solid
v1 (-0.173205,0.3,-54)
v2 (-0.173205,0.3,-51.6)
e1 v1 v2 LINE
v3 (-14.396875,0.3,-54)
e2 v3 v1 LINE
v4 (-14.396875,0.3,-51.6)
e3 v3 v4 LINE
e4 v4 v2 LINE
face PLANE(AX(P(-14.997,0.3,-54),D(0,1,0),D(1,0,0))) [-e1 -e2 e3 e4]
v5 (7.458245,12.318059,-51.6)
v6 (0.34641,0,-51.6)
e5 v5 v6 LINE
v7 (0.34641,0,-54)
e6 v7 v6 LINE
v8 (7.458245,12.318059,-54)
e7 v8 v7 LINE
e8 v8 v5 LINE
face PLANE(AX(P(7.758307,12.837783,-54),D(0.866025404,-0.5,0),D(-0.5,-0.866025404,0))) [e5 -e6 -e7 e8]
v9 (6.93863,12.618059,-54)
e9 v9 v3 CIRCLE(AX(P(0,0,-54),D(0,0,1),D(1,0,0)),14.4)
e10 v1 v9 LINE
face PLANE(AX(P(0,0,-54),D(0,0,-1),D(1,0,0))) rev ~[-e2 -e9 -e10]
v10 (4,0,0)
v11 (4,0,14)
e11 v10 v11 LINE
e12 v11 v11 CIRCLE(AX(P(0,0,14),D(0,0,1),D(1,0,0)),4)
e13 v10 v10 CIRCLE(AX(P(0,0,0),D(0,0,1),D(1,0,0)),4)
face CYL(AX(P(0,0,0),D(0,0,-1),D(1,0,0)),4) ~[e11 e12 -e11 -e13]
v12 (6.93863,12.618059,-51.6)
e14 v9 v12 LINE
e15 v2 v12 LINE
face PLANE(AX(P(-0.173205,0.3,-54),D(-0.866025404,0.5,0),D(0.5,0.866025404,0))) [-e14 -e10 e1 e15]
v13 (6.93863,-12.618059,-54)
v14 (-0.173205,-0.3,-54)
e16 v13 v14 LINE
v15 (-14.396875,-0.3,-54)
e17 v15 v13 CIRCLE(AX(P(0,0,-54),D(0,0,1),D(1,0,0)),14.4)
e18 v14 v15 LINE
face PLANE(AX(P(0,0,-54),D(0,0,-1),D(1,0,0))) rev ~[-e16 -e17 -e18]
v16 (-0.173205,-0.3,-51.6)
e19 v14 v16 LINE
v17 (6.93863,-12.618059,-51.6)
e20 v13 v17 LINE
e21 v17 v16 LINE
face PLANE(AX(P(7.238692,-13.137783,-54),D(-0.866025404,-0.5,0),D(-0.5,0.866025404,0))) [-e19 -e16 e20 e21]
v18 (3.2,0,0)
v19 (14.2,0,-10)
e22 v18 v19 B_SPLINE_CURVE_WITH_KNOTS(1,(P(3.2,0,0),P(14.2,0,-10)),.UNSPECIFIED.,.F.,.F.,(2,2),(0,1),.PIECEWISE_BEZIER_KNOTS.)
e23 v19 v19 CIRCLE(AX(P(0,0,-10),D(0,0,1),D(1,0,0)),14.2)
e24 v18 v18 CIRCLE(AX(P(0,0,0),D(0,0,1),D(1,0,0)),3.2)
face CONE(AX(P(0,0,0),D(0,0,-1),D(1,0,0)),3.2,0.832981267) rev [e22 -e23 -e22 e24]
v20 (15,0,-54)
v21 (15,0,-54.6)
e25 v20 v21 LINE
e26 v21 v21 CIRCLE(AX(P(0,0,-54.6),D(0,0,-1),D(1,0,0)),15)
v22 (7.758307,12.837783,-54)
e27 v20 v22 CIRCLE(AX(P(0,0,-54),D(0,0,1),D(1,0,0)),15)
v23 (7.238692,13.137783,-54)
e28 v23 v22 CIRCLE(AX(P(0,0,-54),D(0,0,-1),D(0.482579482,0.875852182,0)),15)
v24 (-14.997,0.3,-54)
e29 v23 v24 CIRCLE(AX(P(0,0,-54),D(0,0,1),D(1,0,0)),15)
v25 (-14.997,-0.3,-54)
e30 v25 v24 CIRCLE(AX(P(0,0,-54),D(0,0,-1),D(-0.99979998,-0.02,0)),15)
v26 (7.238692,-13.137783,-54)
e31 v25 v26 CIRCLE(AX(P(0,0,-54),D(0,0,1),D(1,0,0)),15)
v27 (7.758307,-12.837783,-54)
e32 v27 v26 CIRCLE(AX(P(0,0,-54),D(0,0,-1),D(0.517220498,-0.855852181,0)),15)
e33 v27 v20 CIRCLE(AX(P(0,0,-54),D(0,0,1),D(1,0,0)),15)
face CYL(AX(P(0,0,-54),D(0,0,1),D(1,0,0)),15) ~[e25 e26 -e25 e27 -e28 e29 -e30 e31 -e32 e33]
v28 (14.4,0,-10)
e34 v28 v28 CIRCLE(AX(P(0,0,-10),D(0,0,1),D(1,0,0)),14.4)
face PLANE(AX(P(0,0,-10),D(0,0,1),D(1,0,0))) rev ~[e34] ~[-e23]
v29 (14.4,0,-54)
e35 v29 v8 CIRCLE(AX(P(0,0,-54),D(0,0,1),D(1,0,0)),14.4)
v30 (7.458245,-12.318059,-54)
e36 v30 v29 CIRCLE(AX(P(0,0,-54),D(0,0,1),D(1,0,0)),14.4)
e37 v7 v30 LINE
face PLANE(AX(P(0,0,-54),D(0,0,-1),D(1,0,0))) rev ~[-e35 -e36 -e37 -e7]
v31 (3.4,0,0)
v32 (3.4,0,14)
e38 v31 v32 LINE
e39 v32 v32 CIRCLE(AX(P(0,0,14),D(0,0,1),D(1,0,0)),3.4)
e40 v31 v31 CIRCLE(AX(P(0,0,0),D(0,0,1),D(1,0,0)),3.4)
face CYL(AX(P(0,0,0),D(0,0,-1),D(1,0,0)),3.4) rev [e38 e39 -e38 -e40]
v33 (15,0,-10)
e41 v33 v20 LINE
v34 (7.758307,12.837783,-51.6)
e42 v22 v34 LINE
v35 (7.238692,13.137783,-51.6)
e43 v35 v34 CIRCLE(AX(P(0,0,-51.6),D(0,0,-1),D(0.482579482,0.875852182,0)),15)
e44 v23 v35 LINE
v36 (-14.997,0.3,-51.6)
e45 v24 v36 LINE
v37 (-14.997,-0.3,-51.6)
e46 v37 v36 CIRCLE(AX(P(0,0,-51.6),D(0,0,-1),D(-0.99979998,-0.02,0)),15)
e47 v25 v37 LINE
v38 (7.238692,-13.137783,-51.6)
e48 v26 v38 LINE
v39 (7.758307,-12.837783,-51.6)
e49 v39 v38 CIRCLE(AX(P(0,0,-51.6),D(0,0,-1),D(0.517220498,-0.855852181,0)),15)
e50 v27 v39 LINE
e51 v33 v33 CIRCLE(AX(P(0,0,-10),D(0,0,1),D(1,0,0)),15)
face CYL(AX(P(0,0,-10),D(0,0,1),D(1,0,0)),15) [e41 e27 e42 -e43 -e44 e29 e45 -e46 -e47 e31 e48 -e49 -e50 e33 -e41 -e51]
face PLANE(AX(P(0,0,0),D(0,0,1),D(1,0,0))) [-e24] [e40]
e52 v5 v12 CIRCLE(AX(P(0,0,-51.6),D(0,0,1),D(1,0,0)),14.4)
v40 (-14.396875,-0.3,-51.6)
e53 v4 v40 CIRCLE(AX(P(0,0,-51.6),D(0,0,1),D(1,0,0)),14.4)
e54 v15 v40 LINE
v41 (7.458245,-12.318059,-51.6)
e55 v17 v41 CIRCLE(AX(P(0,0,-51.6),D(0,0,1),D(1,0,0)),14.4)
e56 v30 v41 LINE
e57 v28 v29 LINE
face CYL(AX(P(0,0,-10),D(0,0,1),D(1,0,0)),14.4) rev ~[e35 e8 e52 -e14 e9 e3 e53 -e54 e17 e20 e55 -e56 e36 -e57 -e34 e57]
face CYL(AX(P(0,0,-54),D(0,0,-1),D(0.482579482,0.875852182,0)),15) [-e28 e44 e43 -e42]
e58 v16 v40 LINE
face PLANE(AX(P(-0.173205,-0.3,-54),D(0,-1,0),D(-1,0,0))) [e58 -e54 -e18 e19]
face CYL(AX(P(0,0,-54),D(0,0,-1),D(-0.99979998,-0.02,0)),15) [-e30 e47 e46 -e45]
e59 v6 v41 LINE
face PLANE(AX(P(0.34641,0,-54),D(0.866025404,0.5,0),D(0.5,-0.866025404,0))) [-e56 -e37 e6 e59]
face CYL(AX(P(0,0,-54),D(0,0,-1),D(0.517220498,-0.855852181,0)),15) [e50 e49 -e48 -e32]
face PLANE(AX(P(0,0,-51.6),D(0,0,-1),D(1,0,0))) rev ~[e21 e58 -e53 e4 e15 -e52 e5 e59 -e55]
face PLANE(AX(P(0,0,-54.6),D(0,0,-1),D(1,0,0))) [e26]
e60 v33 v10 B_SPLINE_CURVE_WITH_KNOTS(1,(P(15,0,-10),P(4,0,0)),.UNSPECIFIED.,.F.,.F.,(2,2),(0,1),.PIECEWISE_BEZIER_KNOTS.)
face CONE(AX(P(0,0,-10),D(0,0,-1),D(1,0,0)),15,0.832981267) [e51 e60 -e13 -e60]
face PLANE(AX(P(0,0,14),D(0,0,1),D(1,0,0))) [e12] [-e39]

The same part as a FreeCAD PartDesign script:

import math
import FreeCAD as App
import Part
import Sketcher
Q = App.Units.Quantity

doc = App.newDocument("Part")
body = doc.addObject("PartDesign::Body", "Body")

# Sketch on XY plane
sketch1 = doc.addObject("Sketcher::SketchObject", "Sketch")
body.addObject(sketch1)
sketch1.AttachmentSupport = (doc.XY_Plane, [""])
sketch1.MapMode = "FlatFace"
sketch1.addGeometry([
    Part.Circle(App.Vector(0, 0, 0), App.Vector(0, 0, 1), 4),
    Part.Circle(App.Vector(0, 0, 0), App.Vector(0, 0, 1), 3.4),
], False)
sketch1.addConstraint([
    Sketcher.Constraint("Coincident", 0, 3, -1, 1),
    Sketcher.Constraint("Coincident", 1, 3, -1, 1),
    Sketcher.Constraint("Diameter", 0, Q("8 mm")),
    Sketcher.Constraint("Diameter", 1, Q("6.8 mm")),
])
pad1 = doc.addObject("PartDesign::Pad", "Pad")
body.addObject(pad1)
pad1.Profile = sketch1
pad1.Length = 14

# Sketch on XY plane
sketch2 = doc.addObject("Sketcher::SketchObject", "Sketch001")
body.addObject(sketch2)
sketch2.AttachmentSupport = (doc.XY_Plane, [""])
sketch2.MapMode = "FlatFace"
sketch2.AttachmentOffset = App.Placement(App.Vector(0, 0, -10), App.Rotation())
sketch2.addGeometry(Part.Circle(App.Vector(0, 0, 0), App.Vector(0, 0, 1), 15), False)
sketch2.addConstraint([
    Sketcher.Constraint("Coincident", 0, 3, -1, 1),
    Sketcher.Constraint("Diameter", 0, Q("30 mm")),
])

# Sketch on XY plane
sketch3 = doc.addObject("Sketcher::SketchObject", "Sketch002")
body.addObject(sketch3)
sketch3.AttachmentSupport = (doc.XY_Plane, [""])
sketch3.MapMode = "FlatFace"
sketch3.addGeometry(Part.Circle(App.Vector(0, 0, 0), App.Vector(0, 0, 1), 4), False)
sketch3.addConstraint([
    Sketcher.Constraint("Coincident", 0, 3, -1, 1),
    Sketcher.Constraint("Diameter", 0, Q("8 mm")),
])

additiveloft = doc.addObject("PartDesign::AdditiveLoft", "AdditiveLoft")
body.addObject(additiveloft)
additiveloft.Profile = sketch2
additiveloft.Sections = [sketch3]

# Sketch on XY plane
sketch4 = doc.addObject("Sketcher::SketchObject", "Sketch003")
body.addObject(sketch4)
sketch4.AttachmentSupport = (doc.XY_Plane, [""])
sketch4.MapMode = "FlatFace"
sketch4.addGeometry(Part.Circle(App.Vector(0, 0, 0), App.Vector(0, 0, 1), 3.2), False)
sketch4.addConstraint([
    Sketcher.Constraint("Coincident", 0, 3, -1, 1),
    Sketcher.Constraint("Diameter", 0, Q("6.4 mm")),
])

# Sketch on XY plane
sketch5 = doc.addObject("Sketcher::SketchObject", "Sketch004")
body.addObject(sketch5)
sketch5.AttachmentSupport = (doc.XY_Plane, [""])
sketch5.MapMode = "FlatFace"
sketch5.AttachmentOffset = App.Placement(App.Vector(0, 0, -10), App.Rotation())
sketch5.addGeometry(Part.Circle(App.Vector(0, 0, 0), App.Vector(0, 0, 1), 14.2), False)
sketch5.addConstraint([
    Sketcher.Constraint("Coincident", 0, 3, -1, 1),
    Sketcher.Constraint("Diameter", 0, Q("28.4 mm")),
])

subtractiveloft = doc.addObject("PartDesign::SubtractiveLoft", "SubtractiveLoft")
body.addObject(subtractiveloft)
subtractiveloft.Profile = sketch4
subtractiveloft.Sections = [sketch5]

# Sketch on XY plane
sketch6 = doc.addObject("Sketcher::SketchObject", "Sketch005")
body.addObject(sketch6)
sketch6.AttachmentSupport = (doc.XY_Plane, [""])
sketch6.MapMode = "FlatFace"
sketch6.AttachmentOffset = App.Placement(App.Vector(0, 0, -10), App.Rotation())
sketch6.addGeometry([
    Part.Circle(App.Vector(0, 0, 0), App.Vector(0, 0, 1), 15),
    Part.Circle(App.Vector(0, 0, 0), App.Vector(0, 0, 1), 14.4),
], False)
sketch6.addConstraint([
    Sketcher.Constraint("Coincident", 0, 3, -1, 1),
    Sketcher.Constraint("Coincident", 1, 3, -1, 1),
    Sketcher.Constraint("Diameter", 0, Q("30 mm")),
    Sketcher.Constraint("Diameter", 1, Q("28.8 mm")),
])
pad2 = doc.addObject("PartDesign::Pad", "Pad001")
body.addObject(pad2)
pad2.Profile = sketch6
pad2.Length = 44
pad2.Reversed = True

# Sketch on XY plane
sketch7 = doc.addObject("Sketcher::SketchObject", "Sketch006")
body.addObject(sketch7)
sketch7.AttachmentSupport = (doc.XY_Plane, [""])
sketch7.MapMode = "FlatFace"
sketch7.AttachmentOffset = App.Placement(App.Vector(0, 0, -54), App.Rotation())
sketch7.addGeometry([
    Part.LineSegment(App.Vector(0.34641, 0, 0), App.Vector(7.758307, -12.837783, 0)),  # 0
    Part.ArcOfCircle(Part.Circle(App.Vector(0, 0, 0), App.Vector(0, 0, 1), 15), math.radians(-61.145992), math.radians(-58.854008)),  # 1
    Part.LineSegment(App.Vector(7.238692, -13.137783, 0), App.Vector(-0.173205, -0.3, 0)),  # 2
    Part.LineSegment(App.Vector(-0.173205, -0.3, 0), App.Vector(-14.997, -0.3, 0)),  # 3
    Part.ArcOfCircle(Part.Circle(App.Vector(0, 0, 0), App.Vector(0, 0, 1), 15), math.radians(178.854008), math.radians(181.145992)),  # 4
    Part.LineSegment(App.Vector(-14.997, 0.3, 0), App.Vector(-0.173205, 0.3, 0)),  # 5
    Part.LineSegment(App.Vector(-0.173205, 0.3, 0), App.Vector(7.238692, 13.137783, 0)),  # 6
    Part.ArcOfCircle(Part.Circle(App.Vector(0, 0, 0), App.Vector(0, 0, 1), 15), math.radians(58.854008), math.radians(61.145992)),  # 7
    Part.LineSegment(App.Vector(7.758307, 12.837783, 0), App.Vector(0.34641, 0, 0)),  # 8
], False)
sketch7.addConstraint([
    Sketcher.Constraint("Coincident", 0, 2, 1, 2),
    Sketcher.Constraint("Coincident", 1, 1, 2, 1),
    Sketcher.Constraint("Coincident", 2, 2, 3, 1),
    Sketcher.Constraint("Coincident", 3, 2, 4, 2),
    Sketcher.Constraint("Coincident", 4, 1, 5, 1),
    Sketcher.Constraint("Coincident", 5, 2, 6, 1),
    Sketcher.Constraint("Coincident", 6, 2, 7, 2),
    Sketcher.Constraint("Coincident", 7, 1, 8, 1),
    Sketcher.Constraint("Coincident", 8, 2, 0, 1),
    Sketcher.Constraint("Horizontal", 3),
    Sketcher.Constraint("Horizontal", 5),
    Sketcher.Constraint("Coincident", 1, 3, -1, 1),
    Sketcher.Constraint("Coincident", 4, 3, -1, 1),
    Sketcher.Constraint("Coincident", 7, 3, -1, 1),
    Sketcher.Constraint("Equal", 1, 4),
    Sketcher.Constraint("Equal", 4, 7),
    Sketcher.Constraint("Symmetric", 2, 2, 5, 2, -1),
    Sketcher.Constraint("PointOnObject", 8, 2, -1),
    Sketcher.Constraint("Parallel", 0, 2),
    Sketcher.Constraint("Parallel", 6, 8),
    Sketcher.Constraint("Vertical", 1, 1, 6, 2),
    Sketcher.Constraint("Equal", 0, 2),
    Sketcher.Constraint("Radius", 1, Q("15 mm")),
    Sketcher.Constraint("Angle", 0, Q("-60 deg")),
    Sketcher.Constraint("DistanceY", 2, 2, -1, 1, Q("0.3 mm")),
    Sketcher.Constraint("DistanceX", 3, 2, 3, 1, Q("14.823795 mm")),
])
pad3 = doc.addObject("PartDesign::Pad", "Pad002")
body.addObject(pad3)
pad3.Profile = sketch7
pad3.Length = 2.4

# Sketch on XY plane
sketch8 = doc.addObject("Sketcher::SketchObject", "Sketch007")
body.addObject(sketch8)
sketch8.AttachmentSupport = (doc.XY_Plane, [""])
sketch8.MapMode = "FlatFace"
sketch8.AttachmentOffset = App.Placement(App.Vector(0, 0, -54), App.Rotation())
sketch8.addGeometry(Part.Circle(App.Vector(0, 0, 0), App.Vector(0, 0, 1), 15), False)
sketch8.addConstraint([
    Sketcher.Constraint("Coincident", 0, 3, -1, 1),
    Sketcher.Constraint("Diameter", 0, Q("30 mm")),
])
pad4 = doc.addObject("PartDesign::Pad", "Pad003")
body.addObject(pad4)
pad4.Profile = sketch8
pad4.Length = 0.6
pad4.Reversed = True

doc.recompute()
